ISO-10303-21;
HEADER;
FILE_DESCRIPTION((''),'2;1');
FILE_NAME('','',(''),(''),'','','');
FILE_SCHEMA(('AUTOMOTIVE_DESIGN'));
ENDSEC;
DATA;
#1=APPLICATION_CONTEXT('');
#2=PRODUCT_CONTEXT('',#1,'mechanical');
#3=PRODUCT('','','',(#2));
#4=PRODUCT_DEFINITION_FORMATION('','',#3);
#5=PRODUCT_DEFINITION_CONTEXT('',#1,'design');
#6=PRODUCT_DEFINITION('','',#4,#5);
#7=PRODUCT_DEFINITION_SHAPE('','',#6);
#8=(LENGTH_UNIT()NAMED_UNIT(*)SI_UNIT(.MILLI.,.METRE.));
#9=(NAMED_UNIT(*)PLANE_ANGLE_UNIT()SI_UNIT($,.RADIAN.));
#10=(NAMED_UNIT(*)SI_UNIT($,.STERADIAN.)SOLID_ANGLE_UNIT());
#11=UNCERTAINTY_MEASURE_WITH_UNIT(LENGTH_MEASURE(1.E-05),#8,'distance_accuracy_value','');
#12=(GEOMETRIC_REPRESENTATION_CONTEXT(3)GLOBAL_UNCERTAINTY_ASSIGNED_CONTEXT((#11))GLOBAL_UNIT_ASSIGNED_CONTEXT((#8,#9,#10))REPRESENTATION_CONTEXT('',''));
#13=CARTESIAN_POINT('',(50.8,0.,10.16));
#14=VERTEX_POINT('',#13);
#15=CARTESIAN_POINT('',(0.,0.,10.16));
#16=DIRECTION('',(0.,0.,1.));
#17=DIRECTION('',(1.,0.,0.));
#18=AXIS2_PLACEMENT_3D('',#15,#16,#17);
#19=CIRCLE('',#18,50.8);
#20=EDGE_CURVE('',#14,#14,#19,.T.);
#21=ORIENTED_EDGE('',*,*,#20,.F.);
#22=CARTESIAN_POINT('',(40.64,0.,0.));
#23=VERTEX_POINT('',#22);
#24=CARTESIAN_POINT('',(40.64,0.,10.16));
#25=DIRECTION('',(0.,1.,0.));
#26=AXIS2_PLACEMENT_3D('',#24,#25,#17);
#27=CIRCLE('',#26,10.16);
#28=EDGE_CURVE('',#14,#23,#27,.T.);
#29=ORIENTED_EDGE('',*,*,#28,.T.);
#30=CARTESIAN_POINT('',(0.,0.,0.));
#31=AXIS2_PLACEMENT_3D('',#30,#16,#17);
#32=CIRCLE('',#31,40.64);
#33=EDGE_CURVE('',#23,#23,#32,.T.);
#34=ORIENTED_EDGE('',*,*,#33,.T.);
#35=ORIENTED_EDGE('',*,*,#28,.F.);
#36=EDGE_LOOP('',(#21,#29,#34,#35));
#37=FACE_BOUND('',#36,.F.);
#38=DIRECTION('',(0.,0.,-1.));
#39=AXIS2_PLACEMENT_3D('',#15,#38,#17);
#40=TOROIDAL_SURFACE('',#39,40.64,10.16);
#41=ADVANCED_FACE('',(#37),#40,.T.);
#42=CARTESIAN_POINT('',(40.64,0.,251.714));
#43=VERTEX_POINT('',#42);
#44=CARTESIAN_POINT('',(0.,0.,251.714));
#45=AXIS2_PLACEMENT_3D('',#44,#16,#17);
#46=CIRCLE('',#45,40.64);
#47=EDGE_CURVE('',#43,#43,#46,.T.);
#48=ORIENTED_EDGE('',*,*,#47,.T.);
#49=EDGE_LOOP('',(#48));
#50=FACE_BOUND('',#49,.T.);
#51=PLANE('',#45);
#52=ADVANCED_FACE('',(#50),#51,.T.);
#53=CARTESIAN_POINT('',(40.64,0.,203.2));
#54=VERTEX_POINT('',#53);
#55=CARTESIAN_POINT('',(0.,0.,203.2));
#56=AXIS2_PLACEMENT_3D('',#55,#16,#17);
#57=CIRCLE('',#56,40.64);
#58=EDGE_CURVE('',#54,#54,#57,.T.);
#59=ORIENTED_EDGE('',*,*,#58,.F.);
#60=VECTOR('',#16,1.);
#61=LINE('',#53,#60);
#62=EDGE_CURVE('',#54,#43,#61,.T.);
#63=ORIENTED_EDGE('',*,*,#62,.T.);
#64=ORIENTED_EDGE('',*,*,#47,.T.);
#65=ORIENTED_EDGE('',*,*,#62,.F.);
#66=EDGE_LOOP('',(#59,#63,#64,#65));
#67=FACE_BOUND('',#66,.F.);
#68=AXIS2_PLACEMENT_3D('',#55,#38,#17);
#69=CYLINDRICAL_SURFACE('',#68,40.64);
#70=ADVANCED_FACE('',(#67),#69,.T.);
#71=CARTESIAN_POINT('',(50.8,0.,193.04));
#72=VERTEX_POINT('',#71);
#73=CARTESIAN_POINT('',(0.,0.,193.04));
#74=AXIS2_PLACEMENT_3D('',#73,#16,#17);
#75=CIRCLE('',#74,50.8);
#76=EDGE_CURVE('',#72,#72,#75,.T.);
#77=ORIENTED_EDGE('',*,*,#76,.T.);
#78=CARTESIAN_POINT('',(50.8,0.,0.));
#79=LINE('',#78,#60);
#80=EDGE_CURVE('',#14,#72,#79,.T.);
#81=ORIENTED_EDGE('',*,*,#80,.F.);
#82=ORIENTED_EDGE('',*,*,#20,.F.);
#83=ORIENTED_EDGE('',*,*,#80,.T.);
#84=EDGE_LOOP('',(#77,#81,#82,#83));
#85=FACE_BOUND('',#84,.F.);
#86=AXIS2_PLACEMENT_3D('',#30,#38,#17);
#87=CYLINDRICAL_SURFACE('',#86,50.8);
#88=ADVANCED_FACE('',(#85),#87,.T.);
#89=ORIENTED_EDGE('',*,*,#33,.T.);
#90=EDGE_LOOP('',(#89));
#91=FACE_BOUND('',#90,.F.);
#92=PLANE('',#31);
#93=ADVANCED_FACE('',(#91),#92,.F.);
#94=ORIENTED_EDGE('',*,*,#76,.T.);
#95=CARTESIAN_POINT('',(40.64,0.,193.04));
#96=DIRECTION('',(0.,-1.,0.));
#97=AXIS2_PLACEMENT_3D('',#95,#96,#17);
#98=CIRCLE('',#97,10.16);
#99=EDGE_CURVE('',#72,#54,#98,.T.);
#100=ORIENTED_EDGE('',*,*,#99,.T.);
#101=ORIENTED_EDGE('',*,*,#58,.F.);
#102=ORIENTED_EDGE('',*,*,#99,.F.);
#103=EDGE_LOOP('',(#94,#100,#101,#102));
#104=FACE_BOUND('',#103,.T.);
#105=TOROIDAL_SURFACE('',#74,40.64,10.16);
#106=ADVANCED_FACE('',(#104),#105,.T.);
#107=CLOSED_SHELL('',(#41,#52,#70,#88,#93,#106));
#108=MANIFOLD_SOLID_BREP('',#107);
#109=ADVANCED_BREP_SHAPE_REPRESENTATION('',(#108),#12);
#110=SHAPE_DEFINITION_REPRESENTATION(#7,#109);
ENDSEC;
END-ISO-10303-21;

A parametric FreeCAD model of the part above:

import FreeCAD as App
import Part
import Sketcher
Q = App.Units.Quantity

doc = App.newDocument("Part")
body = doc.addObject("PartDesign::Body", "Body")

sketch1 = doc.addObject("Sketcher::SketchObject", "Sketch")
body.addObject(sketch1)
sketch1.AttachmentSupport = (doc.XY_Plane, [""])
sketch1.MapMode = "FlatFace"
sketch1.addGeometry(Part.Circle(App.Vector(0, 0, 0), App.Vector(0, 0, 1), 51), False)
sketch1.addConstraint(Sketcher.Constraint("Coincident", 0, 3, -1, 1))
sketch1.addConstraint(Sketcher.Constraint("Diameter", 0, Q("4 in")))
pad1 = doc.addObject("PartDesign::Pad", "Pad")
body.addObject(pad1)
pad1.Profile = sketch1
pad1.Length = Q("8 in")
doc.recompute()

fillet = doc.addObject("PartDesign::Fillet", "Fillet")
body.addObject(fillet)
fillet.Base = (pad1, ["Edge1"])
fillet.UseAllEdges = True
fillet.Radius = Q("0.4 in")

sketch2 = doc.addObject("Sketcher::SketchObject", "Sketch001")
body.addObject(sketch2)
sketch2.AttachmentSupport = (doc.XY_Plane, [""])
sketch2.MapMode = "FlatFace"
sketch2.AttachmentOffset = App.Placement(App.Vector(0, 0, 8 * 25.4), App.Rotation())
sketch2.addGeometry(Part.Circle(App.Vector(0, 0, 0), App.Vector(0, 0, 1), 41), False)
sketch2.addConstraint(Sketcher.Constraint("Coincident", 0, 3, -1, 1))
sketch2.addConstraint(Sketcher.Constraint("Diameter", 0, Q("3.2 in")))
pad2 = doc.addObject("PartDesign::Pad", "Pad001")
body.addObject(pad2)
pad2.Profile = sketch2
pad2.Length = Q("1.91 in")

doc.recompute()
